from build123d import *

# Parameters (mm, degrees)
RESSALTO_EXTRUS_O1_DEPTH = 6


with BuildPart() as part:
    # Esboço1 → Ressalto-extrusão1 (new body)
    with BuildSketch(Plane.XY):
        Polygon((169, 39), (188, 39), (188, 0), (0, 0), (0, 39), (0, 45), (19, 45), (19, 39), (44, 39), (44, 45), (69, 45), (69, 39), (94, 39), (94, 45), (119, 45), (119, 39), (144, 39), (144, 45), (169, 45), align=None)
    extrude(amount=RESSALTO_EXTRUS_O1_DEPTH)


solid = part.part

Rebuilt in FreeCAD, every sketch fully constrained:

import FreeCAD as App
import Part
import Sketcher
Q = App.Units.Quantity


def add_polygon(sketch, points):
    """Adds a closed chain of lines whose ends are joined by coincident constraints."""
    first, n = sketch.GeometryCount, len(points)
    for a, b in zip(points, points[1:] + points[:1]):
        sketch.addGeometry(Part.LineSegment(App.Vector(*a, 0), App.Vector(*b, 0)), False)
    for i in range(n):
        sketch.addConstraint(Sketcher.Constraint("Coincident", first + i, 2, first + (i + 1) % n, 1))

doc = App.newDocument("Part")
params = doc.addObject("Spreadsheet::Sheet", "Params")
for row, (alias, value) in enumerate([
    ("sketch1_width", "19 mm"),
    ("sketch1_width2", "25 mm"),
    ("sketch1_height", "6 mm"),
    ("sketch1_height2", "45 mm"),
    ("pad1_length", "6 mm"),
], start=1):
    params.set(f"A{row}", alias)
    params.set(f"B{row}", "=" + value)
    params.setAlias(f"B{row}", alias)

body = doc.addObject("PartDesign::Body", "Body")

# Sketch on XY plane
sketch1 = doc.addObject("Sketcher::SketchObject", "Sketch")
body.addObject(sketch1)
sketch1.AttachmentSupport = (doc.XY_Plane, [""])
sketch1.MapMode = "FlatFace"
add_polygon(sketch1, [(188, 39), (169, 39), (169, 45), (144, 45), (144, 39), (119, 39), (119, 45), (94, 45), (94, 39), (69, 39), (69, 45), (44, 45), (44, 39), (19, 39), (19, 45), (0, 45), (0, 0), (188, 0)])  # lines 0-17
sketch1.addConstraint([
    Sketcher.Constraint("Horizontal", 0),
    Sketcher.Constraint("Vertical", 1),
    Sketcher.Constraint("Horizontal", 2),
    Sketcher.Constraint("Vertical", 3),
    Sketcher.Constraint("Horizontal", 4),
    Sketcher.Constraint("Vertical", 5),
    Sketcher.Constraint("Horizontal", 6),
    Sketcher.Constraint("Vertical", 7),
    Sketcher.Constraint("Horizontal", 8),
    Sketcher.Constraint("Vertical", 9),
    Sketcher.Constraint("Horizontal", 10),
    Sketcher.Constraint("Vertical", 11),
    Sketcher.Constraint("Horizontal", 12),
    Sketcher.Constraint("Vertical", 13),
    Sketcher.Constraint("Horizontal", 14),
    Sketcher.Constraint("Vertical", 15),
    Sketcher.Constraint("Horizontal", 16),
    Sketcher.Constraint("Vertical", 17),
    Sketcher.Constraint("Coincident", 15, 2, -1, 1),
    Sketcher.Constraint("Horizontal", 0, 2, 3, 2),
    Sketcher.Constraint("Horizontal", 2, 2, 5, 2),
    Sketcher.Constraint("Horizontal", 4, 2, 7, 2),
    Sketcher.Constraint("Horizontal", 6, 2, 9, 2),
    Sketcher.Constraint("Horizontal", 8, 2, 11, 2),
    Sketcher.Constraint("Horizontal", 10, 2, 13, 2),
    Sketcher.Constraint("Equal", 2, 4),
    Sketcher.Constraint("Equal", 4, 6),
    Sketcher.Constraint("Equal", 6, 8),
    Sketcher.Constraint("Equal", 8, 10),
    Sketcher.Constraint("Equal", 10, 12),
    Sketcher.Constraint("Equal", 0, 14),
    Sketcher.Constraint("DistanceX", 0, 2, 0, 1, Q("19 mm")),
    Sketcher.Constraint("DistanceX", 2, 2, 2, 1, Q("25 mm")),
    Sketcher.Constraint("DistanceY", 1, 1, 1, 2, Q("6 mm")),
    Sketcher.Constraint("DistanceY", 15, 2, 15, 1, Q("45 mm")),
])
sketch1.setExpression("Constraints[49]", "Params.sketch1_width")
sketch1.setExpression("Constraints[50]", "Params.sketch1_width2")
sketch1.setExpression("Constraints[51]", "Params.sketch1_height")
sketch1.setExpression("Constraints[52]", "Params.sketch1_height2")
pad1 = doc.addObject("PartDesign::Pad", "Pad")
body.addObject(pad1)
pad1.Profile = sketch1
pad1.setExpression("Length", "Params.pad1_length")

doc.recompute()
